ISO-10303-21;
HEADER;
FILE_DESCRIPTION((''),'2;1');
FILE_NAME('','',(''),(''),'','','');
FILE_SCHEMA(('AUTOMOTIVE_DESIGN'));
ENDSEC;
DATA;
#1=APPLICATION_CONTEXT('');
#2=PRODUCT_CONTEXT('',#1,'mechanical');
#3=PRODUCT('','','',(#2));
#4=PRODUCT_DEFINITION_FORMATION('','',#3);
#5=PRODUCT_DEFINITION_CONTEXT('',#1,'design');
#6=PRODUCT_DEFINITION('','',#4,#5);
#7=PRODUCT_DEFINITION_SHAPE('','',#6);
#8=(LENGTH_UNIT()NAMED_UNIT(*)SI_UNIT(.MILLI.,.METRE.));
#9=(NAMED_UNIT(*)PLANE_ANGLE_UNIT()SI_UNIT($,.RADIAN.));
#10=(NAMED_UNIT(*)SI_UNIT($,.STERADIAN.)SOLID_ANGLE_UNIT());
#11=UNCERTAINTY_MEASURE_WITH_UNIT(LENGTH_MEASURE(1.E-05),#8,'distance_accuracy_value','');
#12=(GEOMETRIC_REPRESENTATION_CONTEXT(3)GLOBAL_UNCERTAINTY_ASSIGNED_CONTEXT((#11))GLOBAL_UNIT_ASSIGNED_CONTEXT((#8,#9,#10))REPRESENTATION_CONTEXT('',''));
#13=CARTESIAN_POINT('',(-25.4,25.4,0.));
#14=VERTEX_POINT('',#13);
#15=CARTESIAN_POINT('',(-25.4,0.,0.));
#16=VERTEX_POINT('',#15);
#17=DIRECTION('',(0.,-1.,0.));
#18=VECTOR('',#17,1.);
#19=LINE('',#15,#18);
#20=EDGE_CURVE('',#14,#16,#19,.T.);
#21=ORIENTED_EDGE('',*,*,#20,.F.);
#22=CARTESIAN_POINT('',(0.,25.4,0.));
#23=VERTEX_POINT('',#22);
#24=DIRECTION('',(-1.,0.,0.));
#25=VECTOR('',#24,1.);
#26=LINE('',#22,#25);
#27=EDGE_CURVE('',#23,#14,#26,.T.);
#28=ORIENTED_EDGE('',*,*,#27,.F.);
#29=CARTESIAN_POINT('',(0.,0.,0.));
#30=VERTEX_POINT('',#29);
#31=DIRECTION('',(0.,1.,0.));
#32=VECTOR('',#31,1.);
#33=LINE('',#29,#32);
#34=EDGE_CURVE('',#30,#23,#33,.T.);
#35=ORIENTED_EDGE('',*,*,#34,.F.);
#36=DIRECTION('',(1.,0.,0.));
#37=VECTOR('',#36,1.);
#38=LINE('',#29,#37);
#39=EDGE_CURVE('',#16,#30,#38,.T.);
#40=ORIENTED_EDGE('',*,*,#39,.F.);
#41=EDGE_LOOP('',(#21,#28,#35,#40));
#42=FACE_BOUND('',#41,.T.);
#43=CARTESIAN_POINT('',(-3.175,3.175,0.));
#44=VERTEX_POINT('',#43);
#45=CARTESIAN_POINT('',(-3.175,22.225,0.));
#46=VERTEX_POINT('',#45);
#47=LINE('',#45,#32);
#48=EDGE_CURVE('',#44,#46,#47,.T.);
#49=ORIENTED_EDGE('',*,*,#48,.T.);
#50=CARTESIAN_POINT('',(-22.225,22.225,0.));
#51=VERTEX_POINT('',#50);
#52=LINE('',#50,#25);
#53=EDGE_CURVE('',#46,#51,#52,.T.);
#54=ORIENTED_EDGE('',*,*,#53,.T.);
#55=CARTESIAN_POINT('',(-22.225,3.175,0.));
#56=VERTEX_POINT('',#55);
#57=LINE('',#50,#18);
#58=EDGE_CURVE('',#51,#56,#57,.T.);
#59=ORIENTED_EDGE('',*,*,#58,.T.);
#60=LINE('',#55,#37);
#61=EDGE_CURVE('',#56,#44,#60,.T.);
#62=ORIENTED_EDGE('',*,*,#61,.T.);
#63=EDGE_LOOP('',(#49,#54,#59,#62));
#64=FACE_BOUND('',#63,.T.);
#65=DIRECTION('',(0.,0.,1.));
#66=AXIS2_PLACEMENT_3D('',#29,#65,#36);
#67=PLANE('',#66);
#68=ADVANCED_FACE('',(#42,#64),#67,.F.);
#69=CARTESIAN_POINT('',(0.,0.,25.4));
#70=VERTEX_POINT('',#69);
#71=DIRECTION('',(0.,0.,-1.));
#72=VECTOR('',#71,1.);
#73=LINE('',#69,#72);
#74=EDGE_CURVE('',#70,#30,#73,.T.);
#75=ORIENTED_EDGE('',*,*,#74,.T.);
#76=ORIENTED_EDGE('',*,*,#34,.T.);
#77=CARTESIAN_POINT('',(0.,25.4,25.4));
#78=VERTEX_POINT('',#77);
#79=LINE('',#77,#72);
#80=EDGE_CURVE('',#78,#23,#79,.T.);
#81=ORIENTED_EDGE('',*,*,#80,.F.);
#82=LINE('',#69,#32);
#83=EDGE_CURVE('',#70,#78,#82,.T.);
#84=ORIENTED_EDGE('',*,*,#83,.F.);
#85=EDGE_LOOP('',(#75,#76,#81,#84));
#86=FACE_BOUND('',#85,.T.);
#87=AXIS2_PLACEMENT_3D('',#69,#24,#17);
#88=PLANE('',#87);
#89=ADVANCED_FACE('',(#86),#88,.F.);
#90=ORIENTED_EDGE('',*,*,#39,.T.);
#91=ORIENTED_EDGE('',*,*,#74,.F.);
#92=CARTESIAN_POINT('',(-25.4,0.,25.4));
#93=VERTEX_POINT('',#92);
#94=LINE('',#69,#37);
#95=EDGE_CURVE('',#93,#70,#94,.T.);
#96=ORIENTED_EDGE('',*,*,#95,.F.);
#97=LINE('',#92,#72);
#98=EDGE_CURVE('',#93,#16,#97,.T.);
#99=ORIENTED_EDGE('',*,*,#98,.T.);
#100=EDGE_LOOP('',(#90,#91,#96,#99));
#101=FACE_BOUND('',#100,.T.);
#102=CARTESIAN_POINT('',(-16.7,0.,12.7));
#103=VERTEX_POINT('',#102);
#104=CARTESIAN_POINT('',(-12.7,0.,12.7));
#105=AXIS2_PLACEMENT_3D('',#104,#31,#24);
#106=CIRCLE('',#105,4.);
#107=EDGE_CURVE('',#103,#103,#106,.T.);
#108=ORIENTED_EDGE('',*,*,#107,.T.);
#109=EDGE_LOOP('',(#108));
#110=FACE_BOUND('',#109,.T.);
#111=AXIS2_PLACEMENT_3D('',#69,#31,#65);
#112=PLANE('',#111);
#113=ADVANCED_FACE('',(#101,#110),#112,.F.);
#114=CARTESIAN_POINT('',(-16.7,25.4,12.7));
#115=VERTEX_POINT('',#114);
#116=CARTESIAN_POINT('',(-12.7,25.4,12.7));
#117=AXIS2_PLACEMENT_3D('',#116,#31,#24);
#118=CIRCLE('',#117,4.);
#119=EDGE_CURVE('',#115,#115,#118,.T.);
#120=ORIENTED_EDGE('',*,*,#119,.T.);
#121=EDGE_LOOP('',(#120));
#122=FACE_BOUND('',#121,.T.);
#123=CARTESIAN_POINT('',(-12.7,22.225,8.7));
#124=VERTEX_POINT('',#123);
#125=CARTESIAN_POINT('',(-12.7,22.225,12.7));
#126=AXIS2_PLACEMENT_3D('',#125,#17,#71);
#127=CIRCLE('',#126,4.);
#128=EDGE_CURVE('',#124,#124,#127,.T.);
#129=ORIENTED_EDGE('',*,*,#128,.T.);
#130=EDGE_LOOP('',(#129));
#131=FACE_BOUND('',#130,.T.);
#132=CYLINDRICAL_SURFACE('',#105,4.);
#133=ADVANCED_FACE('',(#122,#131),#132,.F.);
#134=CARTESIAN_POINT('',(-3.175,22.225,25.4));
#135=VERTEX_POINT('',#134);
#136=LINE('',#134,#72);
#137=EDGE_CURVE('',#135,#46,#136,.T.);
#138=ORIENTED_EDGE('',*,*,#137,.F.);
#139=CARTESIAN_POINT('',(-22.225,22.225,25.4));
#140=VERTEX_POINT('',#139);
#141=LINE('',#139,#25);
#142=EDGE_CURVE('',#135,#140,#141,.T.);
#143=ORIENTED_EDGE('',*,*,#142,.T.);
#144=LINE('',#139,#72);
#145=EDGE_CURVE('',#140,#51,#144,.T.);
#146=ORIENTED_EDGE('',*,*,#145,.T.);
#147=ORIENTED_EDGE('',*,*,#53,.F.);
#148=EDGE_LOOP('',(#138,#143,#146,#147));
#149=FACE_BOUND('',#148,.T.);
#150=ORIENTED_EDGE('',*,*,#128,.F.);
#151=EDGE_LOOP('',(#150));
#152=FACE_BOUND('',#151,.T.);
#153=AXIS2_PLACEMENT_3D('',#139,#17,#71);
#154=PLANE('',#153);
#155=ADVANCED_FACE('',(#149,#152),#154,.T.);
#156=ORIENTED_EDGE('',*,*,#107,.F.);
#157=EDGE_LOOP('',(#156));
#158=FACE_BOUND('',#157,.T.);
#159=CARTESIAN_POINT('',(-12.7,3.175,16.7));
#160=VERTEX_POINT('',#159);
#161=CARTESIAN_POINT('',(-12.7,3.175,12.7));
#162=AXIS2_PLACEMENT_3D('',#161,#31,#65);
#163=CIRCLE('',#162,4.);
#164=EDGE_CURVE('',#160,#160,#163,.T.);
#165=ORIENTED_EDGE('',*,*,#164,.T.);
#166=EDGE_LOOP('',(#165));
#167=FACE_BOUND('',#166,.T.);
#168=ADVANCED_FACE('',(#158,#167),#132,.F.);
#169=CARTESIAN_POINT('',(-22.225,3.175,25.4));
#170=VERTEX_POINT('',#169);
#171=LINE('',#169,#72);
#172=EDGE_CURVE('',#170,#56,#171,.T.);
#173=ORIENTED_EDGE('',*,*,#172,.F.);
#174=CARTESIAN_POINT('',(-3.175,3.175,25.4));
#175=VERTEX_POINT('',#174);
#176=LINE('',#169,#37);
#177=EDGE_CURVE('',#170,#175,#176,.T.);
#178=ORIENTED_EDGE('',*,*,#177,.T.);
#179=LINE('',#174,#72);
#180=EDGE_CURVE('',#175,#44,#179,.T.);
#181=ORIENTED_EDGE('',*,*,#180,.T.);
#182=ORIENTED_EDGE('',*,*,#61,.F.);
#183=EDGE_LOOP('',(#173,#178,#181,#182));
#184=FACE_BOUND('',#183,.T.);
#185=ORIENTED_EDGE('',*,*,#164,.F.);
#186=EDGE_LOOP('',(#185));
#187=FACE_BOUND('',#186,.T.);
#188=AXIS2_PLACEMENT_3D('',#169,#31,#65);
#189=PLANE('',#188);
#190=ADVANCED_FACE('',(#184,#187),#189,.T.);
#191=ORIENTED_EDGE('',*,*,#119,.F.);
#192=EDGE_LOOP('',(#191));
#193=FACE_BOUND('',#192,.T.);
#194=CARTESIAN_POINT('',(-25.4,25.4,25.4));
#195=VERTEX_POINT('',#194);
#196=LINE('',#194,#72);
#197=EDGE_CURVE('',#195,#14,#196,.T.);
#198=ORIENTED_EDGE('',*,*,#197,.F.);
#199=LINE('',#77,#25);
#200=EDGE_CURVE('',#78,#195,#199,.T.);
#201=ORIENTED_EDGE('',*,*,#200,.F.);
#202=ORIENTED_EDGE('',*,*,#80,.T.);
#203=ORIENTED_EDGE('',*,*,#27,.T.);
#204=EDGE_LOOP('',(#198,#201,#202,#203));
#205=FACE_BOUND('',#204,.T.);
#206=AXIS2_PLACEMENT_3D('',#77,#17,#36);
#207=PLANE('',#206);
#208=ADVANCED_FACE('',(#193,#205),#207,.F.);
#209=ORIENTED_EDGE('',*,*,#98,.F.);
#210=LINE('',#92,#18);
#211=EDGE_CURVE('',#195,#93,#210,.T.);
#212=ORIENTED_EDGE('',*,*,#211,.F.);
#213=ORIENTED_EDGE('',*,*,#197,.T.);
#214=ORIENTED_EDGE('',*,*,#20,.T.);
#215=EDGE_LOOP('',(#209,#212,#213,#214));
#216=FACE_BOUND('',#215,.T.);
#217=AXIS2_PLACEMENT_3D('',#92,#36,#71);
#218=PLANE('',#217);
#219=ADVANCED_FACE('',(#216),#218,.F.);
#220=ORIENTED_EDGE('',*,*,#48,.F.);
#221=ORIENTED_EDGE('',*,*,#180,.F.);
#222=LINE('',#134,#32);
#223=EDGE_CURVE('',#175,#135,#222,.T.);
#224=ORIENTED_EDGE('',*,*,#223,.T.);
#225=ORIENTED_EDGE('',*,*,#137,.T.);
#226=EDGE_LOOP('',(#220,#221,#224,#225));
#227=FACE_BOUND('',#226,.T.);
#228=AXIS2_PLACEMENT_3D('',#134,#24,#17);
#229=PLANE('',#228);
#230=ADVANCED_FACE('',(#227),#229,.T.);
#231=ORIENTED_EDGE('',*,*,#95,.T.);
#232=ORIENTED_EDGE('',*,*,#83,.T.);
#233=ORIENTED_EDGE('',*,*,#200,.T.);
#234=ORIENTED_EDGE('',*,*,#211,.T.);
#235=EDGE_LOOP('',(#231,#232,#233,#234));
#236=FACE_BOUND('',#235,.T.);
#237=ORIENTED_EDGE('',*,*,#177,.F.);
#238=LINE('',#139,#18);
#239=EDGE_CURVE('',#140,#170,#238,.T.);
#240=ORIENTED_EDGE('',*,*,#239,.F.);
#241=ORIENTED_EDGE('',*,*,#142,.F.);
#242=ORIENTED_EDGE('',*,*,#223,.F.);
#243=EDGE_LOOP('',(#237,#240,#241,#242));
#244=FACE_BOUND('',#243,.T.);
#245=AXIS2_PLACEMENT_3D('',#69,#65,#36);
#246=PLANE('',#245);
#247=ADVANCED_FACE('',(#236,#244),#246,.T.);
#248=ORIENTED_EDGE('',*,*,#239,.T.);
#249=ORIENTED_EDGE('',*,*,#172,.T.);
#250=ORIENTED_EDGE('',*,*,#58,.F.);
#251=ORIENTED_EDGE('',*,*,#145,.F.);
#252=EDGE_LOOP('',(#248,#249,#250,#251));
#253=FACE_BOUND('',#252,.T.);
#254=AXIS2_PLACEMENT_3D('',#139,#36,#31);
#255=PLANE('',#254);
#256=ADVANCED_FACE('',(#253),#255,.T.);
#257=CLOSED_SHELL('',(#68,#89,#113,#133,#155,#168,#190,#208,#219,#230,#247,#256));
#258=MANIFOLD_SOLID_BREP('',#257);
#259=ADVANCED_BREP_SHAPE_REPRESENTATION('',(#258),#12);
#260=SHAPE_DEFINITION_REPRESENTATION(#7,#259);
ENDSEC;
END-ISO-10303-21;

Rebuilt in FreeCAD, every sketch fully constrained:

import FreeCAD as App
import Part
import Sketcher
from FreeCAD import Vector
Q = App.Units.Quantity


def add_polygon(sketch, points):
    """Adds a closed chain of lines whose ends are joined by coincident constraints."""
    first, n = sketch.GeometryCount, len(points)
    for a, b in zip(points, points[1:] + points[:1]):
        sketch.addGeometry(Part.LineSegment(App.Vector(*a, 0), App.Vector(*b, 0)), False)
    for i in range(n):
        sketch.addConstraint(Sketcher.Constraint("Coincident", first + i, 2, first + (i + 1) % n, 1))

doc = App.newDocument("Part")
body = doc.addObject("PartDesign::Body", "Body")

sketch1 = doc.addObject("Sketcher::SketchObject", "Sketch")
body.addObject(sketch1)
sketch1.AttachmentSupport = (doc.XY_Plane, [""])
sketch1.MapMode = "FlatFace"
add_polygon(sketch1, [(-25.4, 25.4), (-25.4, 0), (0, 0), (0, 25.4)])
add_polygon(sketch1, [(-3.175, 3.175), (-22.225, 3.175), (-22.225, 22.225), (-3.175, 22.225)])
sketch1.addConstraint([
    Sketcher.Constraint("Vertical", 0),
    Sketcher.Constraint("Horizontal", 1),
    Sketcher.Constraint("Vertical", 2),
    Sketcher.Constraint("Horizontal", 3),
    Sketcher.Constraint("Horizontal", 4),
    Sketcher.Constraint("Vertical", 5),
    Sketcher.Constraint("Horizontal", 6),
    Sketcher.Constraint("Vertical", 7),
    Sketcher.Constraint("Coincident", 1, 2, -1, 1),
    Sketcher.Constraint("Equal", 3, 0),
    Sketcher.Constraint("Equal", 6, 5),
    Sketcher.Constraint("DistanceX", 1, 1, 1, 2, Q("1 in")),
    Sketcher.Constraint("DistanceX", 4, 2, 4, 1, Q("0.75 in")),
    Sketcher.Constraint("DistanceX", 4, 2, -1, 1, Q("0.875 in")),
    Sketcher.Constraint("DistanceY", -1, 1, 4, 2, Q("0.125 in")),
])
pad1 = doc.addObject("PartDesign::Pad", "Pad")
body.addObject(pad1)
pad1.Profile = sketch1
pad1.Length = Q("1 in")

sketch2 = doc.addObject("Sketcher::SketchObject", "Sketch001")
body.addObject(sketch2)
sketch2.AttachmentSupport = (doc.XZ_Plane, [""])
sketch2.MapMode = "FlatFace"
sketch2.AttachmentOffset = App.Placement(Vector(0, 0, -1 * 25.4), App.Rotation())
sketch2.addGeometry(Part.Circle(Vector(-12.7, 12.7, 0), Vector(0, 0, 1), 4), False)
sketch2.addConstraint([
    Sketcher.Constraint("DistanceX", 0, 3, -1, 1, Q("0.5 in")),
    Sketcher.Constraint("DistanceY", -1, 1, 0, 3, Q("0.5 in")),
    Sketcher.Constraint("Diameter", 0, 8.0),
])
pocket1 = doc.addObject("PartDesign::Pocket", "Pocket")
body.addObject(pocket1)
pocket1.Profile = sketch2
pocket1.Type = "ThroughAll"
pocket1.Reversed = True

doc.recompute()
